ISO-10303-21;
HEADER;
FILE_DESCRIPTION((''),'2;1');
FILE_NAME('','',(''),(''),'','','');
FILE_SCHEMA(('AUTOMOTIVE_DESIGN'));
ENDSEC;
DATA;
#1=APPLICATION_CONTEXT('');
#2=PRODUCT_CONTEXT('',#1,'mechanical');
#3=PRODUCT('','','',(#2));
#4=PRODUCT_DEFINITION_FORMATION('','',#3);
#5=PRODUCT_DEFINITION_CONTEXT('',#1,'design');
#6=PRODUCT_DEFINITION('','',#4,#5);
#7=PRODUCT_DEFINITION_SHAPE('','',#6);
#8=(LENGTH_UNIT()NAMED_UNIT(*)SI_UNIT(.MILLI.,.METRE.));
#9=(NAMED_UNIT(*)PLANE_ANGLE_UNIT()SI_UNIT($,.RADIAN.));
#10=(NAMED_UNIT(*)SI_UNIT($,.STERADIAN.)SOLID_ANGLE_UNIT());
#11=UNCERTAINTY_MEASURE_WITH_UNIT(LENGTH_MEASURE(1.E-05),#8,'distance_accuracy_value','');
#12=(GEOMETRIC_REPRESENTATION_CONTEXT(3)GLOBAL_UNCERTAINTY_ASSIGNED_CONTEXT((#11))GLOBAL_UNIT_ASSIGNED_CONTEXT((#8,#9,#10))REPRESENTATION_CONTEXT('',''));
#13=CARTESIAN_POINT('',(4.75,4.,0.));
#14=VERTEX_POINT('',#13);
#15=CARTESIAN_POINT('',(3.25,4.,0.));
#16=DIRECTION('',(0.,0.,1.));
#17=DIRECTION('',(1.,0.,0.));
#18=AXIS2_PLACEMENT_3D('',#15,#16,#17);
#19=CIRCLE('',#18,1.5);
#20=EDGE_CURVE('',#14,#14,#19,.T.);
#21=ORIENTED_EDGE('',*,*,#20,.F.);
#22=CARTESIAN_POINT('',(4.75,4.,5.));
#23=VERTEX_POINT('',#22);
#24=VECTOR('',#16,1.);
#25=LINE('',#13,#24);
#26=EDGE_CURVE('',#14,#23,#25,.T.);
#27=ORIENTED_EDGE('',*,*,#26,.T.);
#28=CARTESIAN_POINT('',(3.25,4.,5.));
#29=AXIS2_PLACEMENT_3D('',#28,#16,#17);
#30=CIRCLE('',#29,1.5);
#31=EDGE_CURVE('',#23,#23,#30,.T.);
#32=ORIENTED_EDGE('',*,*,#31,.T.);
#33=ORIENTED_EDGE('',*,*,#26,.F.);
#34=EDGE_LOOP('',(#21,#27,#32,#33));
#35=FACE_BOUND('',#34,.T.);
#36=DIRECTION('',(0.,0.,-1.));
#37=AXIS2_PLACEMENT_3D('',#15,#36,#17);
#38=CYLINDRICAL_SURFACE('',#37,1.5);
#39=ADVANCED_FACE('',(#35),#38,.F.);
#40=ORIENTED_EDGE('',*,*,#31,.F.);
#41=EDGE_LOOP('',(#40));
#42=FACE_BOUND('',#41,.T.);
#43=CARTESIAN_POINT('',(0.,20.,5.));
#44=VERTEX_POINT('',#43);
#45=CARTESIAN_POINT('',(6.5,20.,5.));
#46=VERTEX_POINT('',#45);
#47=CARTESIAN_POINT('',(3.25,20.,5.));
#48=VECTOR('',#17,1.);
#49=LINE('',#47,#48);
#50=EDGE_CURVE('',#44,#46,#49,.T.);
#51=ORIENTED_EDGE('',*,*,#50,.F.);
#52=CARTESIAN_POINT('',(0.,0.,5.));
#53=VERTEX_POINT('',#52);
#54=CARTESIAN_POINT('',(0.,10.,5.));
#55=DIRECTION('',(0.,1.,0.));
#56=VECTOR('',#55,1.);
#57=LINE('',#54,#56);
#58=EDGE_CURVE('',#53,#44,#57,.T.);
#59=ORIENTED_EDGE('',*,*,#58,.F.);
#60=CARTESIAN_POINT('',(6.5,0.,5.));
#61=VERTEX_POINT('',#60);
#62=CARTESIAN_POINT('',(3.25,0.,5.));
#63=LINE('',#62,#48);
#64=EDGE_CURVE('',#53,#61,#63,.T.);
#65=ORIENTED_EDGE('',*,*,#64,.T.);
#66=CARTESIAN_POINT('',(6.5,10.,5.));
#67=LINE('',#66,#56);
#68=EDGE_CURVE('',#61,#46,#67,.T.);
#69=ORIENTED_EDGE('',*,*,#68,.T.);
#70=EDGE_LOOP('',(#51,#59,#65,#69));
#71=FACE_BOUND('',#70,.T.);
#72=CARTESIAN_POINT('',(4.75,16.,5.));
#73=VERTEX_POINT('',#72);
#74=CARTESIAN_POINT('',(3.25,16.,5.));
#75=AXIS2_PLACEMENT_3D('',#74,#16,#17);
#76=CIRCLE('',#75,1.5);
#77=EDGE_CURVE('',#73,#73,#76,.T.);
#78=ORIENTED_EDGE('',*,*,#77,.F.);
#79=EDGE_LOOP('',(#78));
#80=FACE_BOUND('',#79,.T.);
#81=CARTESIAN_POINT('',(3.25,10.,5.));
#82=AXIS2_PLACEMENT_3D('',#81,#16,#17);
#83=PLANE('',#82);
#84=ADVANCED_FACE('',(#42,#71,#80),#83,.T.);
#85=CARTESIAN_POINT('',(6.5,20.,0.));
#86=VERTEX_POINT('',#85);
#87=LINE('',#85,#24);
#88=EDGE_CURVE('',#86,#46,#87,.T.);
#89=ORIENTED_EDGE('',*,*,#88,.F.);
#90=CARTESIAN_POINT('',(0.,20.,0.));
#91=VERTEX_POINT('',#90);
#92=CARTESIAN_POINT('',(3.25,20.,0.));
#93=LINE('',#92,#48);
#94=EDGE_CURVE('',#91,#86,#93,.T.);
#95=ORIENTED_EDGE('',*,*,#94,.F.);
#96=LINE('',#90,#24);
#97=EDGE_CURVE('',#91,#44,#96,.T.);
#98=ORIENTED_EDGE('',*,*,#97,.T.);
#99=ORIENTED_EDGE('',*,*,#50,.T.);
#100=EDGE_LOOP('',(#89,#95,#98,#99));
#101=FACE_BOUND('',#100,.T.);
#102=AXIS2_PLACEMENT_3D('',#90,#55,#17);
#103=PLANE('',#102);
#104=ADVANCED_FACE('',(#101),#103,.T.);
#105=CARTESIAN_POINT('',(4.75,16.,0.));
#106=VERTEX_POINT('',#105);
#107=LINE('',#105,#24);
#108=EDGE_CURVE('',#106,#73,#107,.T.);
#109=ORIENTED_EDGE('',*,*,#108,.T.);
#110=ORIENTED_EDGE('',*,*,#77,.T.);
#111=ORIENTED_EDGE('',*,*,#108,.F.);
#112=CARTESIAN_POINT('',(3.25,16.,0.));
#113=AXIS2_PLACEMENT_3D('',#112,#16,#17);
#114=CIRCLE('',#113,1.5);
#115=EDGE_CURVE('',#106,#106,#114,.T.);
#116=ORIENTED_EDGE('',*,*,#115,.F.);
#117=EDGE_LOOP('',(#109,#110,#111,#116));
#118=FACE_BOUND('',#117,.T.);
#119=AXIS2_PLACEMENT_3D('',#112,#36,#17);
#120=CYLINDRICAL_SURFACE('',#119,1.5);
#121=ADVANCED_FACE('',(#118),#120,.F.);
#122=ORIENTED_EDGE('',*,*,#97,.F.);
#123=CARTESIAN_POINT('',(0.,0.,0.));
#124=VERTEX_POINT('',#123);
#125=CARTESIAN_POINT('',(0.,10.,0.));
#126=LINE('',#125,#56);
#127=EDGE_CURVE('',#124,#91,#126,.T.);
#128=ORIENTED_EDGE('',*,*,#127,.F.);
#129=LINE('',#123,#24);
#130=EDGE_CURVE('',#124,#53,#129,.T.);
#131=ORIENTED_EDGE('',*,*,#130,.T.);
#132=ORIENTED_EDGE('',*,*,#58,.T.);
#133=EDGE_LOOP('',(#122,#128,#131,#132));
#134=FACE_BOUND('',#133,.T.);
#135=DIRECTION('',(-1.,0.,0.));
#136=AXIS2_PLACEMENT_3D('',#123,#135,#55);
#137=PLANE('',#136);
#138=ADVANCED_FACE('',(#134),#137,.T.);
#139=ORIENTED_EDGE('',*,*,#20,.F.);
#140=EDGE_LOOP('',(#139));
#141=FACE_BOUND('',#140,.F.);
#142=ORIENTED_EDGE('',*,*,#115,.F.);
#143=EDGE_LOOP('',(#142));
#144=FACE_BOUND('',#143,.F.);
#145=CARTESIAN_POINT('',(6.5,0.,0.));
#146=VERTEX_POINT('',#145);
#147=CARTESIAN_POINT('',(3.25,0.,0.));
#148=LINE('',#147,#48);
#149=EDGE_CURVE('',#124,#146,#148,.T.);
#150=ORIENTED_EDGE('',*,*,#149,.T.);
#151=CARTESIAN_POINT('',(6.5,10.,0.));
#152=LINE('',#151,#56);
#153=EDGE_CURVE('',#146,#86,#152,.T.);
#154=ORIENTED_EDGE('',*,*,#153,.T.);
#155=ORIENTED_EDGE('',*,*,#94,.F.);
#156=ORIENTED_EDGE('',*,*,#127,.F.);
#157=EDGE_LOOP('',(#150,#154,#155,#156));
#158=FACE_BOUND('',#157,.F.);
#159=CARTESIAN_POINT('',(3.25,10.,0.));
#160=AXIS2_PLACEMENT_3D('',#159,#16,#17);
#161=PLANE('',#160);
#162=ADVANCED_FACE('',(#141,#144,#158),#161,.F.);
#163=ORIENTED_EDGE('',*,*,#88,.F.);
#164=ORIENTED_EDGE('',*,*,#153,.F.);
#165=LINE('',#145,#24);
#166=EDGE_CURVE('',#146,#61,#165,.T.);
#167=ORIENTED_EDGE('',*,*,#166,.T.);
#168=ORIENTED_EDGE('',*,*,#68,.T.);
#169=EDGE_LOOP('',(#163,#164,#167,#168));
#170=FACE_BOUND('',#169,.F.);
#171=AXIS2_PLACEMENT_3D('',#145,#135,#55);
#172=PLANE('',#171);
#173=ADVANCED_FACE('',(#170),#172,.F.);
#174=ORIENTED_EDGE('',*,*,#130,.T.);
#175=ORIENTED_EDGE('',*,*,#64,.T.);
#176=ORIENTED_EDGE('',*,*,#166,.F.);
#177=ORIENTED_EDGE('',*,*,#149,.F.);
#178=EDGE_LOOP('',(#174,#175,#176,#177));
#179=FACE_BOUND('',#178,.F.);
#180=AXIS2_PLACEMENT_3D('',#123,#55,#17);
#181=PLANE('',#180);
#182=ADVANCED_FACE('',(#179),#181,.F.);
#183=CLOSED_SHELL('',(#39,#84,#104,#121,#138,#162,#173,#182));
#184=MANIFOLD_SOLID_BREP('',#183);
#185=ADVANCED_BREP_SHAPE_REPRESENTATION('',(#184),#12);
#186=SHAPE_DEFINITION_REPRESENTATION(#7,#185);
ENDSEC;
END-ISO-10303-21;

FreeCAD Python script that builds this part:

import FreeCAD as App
import Part
import Sketcher

V = App.Vector
Q = App.Units.Quantity

doc = App.newDocument("Part")
body = doc.addObject("PartDesign::Body", "Body")

# Sketch on XY plane
sketch1 = body.newObject("Sketcher::SketchObject", "Sketch")
sketch1.AttachmentSupport = (doc.getObject("XY_Plane"), [""])
sketch1.MapMode = "FlatFace"
sketch1.addGeometry([
    Part.LineSegment(V(0, 20, 0), V(0, 0, 0)),  # 0
    Part.LineSegment(V(0, 0, 0), V(6.5, 0, 0)),  # 1
    Part.LineSegment(V(6.5, 0, 0), V(6.5, 20, 0)),  # 2
    Part.LineSegment(V(6.5, 20, 0), V(0, 20, 0)),  # 3
    Part.Circle(V(3.2, 4, 0), V(0, 0, 1), 1.5),  # 4
    Part.Circle(V(3.2, 16, 0), V(0, 0, 1), 1.5),  # 5
], False)
sketch1.addConstraint([
    Sketcher.Constraint("Coincident", 0, 2, 1, 1),
    Sketcher.Constraint("Coincident", 1, 2, 2, 1),
    Sketcher.Constraint("Coincident", 2, 2, 3, 1),
    Sketcher.Constraint("Coincident", 3, 2, 0, 1),
    Sketcher.Constraint("Vertical", 0),
    Sketcher.Constraint("Horizontal", 1),
    Sketcher.Constraint("Vertical", 2),
    Sketcher.Constraint("Horizontal", 3),
    Sketcher.Constraint("Coincident", 0, 2, -1, 1),
    Sketcher.Constraint("Equal", 4, 5),
    Sketcher.Constraint("Vertical", 4, 3, 5, 3),
    Sketcher.Constraint("Diameter", 4, Q("3 mm")),
    Sketcher.Constraint("DistanceY", 0, 2, 0, 1, Q("20 mm")),
    Sketcher.Constraint("DistanceX", 1, 1, 1, 2, Q("6.5 mm")),
    Sketcher.Constraint("DistanceY", -1, 1, 4, 3, Q("4 mm")),
    Sketcher.Constraint("DistanceY", -1, 1, 5, 3, Q("16 mm")),
    Sketcher.Constraint("DistanceX", -1, 1, 4, 3, Q("3.25 mm")),
])
pad1 = body.newObject("PartDesign::Pad", "Pad")
pad1.Profile = sketch1
pad1.Length = 5

doc.recompute()
